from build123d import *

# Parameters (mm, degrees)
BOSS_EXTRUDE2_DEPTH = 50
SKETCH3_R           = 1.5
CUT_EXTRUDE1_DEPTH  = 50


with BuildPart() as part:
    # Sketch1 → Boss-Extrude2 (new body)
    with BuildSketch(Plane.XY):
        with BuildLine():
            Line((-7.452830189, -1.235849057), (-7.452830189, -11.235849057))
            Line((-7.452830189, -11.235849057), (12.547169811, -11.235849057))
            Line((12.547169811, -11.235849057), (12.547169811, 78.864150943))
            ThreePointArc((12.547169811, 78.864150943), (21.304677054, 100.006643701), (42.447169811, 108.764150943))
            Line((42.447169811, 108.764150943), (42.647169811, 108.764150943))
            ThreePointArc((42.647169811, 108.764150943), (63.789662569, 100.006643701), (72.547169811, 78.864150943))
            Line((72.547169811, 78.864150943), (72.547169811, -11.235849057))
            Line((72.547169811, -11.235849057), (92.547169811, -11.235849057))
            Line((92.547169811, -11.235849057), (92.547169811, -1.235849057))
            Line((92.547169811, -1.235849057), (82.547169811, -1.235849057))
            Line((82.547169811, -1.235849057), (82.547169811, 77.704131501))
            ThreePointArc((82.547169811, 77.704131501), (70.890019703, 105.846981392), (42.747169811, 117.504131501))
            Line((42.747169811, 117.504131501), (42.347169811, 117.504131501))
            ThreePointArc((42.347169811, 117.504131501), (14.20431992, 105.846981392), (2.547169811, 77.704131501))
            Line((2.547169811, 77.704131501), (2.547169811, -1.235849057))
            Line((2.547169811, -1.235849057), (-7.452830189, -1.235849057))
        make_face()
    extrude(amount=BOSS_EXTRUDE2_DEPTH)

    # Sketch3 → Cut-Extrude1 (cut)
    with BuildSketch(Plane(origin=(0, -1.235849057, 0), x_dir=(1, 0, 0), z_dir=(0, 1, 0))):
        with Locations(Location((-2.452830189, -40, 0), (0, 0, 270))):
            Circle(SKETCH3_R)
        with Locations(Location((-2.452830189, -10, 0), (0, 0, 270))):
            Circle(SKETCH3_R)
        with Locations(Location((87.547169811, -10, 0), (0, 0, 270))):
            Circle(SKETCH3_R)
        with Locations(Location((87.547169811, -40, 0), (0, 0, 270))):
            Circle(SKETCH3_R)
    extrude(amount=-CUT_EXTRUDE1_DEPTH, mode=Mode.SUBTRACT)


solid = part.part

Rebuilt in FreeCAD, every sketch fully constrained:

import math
import FreeCAD as App
import Part
import Sketcher

V = App.Vector
Q = App.Units.Quantity

doc = App.newDocument("Part")
body = doc.addObject("PartDesign::Body", "Body")

sketch1 = body.newObject("Sketcher::SketchObject", "Sketch")
sketch1.AttachmentSupport = (doc.getObject("XY_Plane"), [""])
sketch1.MapMode = "FlatFace"
sketch1.addGeometry([
    Part.LineSegment(V(-7.45, -1.24, 0), V(-7.45, -11.24, 0)),
    Part.LineSegment(V(-7.45, -11.24, 0), V(12.55, -11.24, 0)),
    Part.LineSegment(V(12.55, -11.24, 0), V(12.55, 78.86, 0)),
    Part.ArcOfCircle(Part.Circle(V(42.45, 78.86, 0), V(0, 0, 1), 29.9), math.radians(90), math.radians(180)),
    Part.LineSegment(V(42.45, 108.76, 0), V(42.65, 108.76, 0)),
    Part.ArcOfCircle(Part.Circle(V(42.65, 78.86, 0), V(0, 0, 1), 29.9), math.radians(0), math.radians(90)),
    Part.LineSegment(V(72.55, 78.86, 0), V(72.55, -11.24, 0)),
    Part.LineSegment(V(72.55, -11.24, 0), V(92.55, -11.24, 0)),
    Part.LineSegment(V(92.55, -11.24, 0), V(92.55, -1.24, 0)),
    Part.LineSegment(V(92.55, -1.24, 0), V(82.55, -1.24, 0)),
    Part.LineSegment(V(82.55, -1.24, 0), V(82.55, 77.7, 0)),
    Part.ArcOfCircle(Part.Circle(V(42.75, 77.7, 0), V(0, 0, 1), 39.8), math.radians(0), math.radians(90)),
    Part.LineSegment(V(42.75, 117.5, 0), V(42.35, 117.5, 0)),
    Part.ArcOfCircle(Part.Circle(V(42.35, 77.7, 0), V(0, 0, 1), 39.8), math.radians(90), math.radians(180)),
    Part.LineSegment(V(2.55, 77.7, 0), V(2.55, -1.24, 0)),
    Part.LineSegment(V(2.55, -1.24, 0), V(-7.45, -1.24, 0)),
], False)
sketch1.addConstraint([
    Sketcher.Constraint("Coincident", 0, 2, 1, 1),
    Sketcher.Constraint("Coincident", 1, 2, 2, 1),
    Sketcher.Constraint("Tangent", 2, 2, 3, 2),
    Sketcher.Constraint("Tangent", 3, 1, 4, 1),
    Sketcher.Constraint("Tangent", 4, 2, 5, 2),
    Sketcher.Constraint("Tangent", 5, 1, 6, 1),
    Sketcher.Constraint("Coincident", 6, 2, 7, 1),
    Sketcher.Constraint("Coincident", 7, 2, 8, 1),
    Sketcher.Constraint("Coincident", 8, 2, 9, 1),
    Sketcher.Constraint("Coincident", 9, 2, 10, 1),
    Sketcher.Constraint("Tangent", 10, 2, 11, 1),
    Sketcher.Constraint("Tangent", 11, 2, 12, 1),
    Sketcher.Constraint("Tangent", 12, 2, 13, 1),
    Sketcher.Constraint("Tangent", 13, 2, 14, 1),
    Sketcher.Constraint("Coincident", 14, 2, 15, 1),
    Sketcher.Constraint("Coincident", 15, 2, 0, 1),
    Sketcher.Constraint("Vertical", 0),
    Sketcher.Constraint("Horizontal", 1),
    Sketcher.Constraint("Vertical", 2),
    Sketcher.Constraint("Horizontal", 4),
    Sketcher.Constraint("Vertical", 6),
    Sketcher.Constraint("Horizontal", 7),
    Sketcher.Constraint("Vertical", 8),
    Sketcher.Constraint("Horizontal", 9),
    Sketcher.Constraint("Vertical", 10),
    Sketcher.Constraint("Horizontal", 12),
    Sketcher.Constraint("Vertical", 14),
    Sketcher.Constraint("Horizontal", 15),
    Sketcher.Constraint("Equal", 3, 5),
    Sketcher.Constraint("Equal", 11, 13),
    Sketcher.Constraint("Horizontal", 1, 2, 6, 2),
    Sketcher.Constraint("Horizontal", 9, 2, 14, 2),
    Sketcher.Constraint("Equal", 1, 7),
    Sketcher.Constraint("Equal", 9, 15),
    Sketcher.Constraint("Equal", 15, 0),
    Sketcher.Constraint("Radius", 3, Q("29.9 mm")),
    Sketcher.Constraint("Radius", 11, Q("39.8 mm")),
    Sketcher.Constraint("DistanceX", 1, 1, 1, 2, Q("20 mm")),
    Sketcher.Constraint("DistanceX", 9, 2, 9, 1, Q("10 mm")),
    Sketcher.Constraint("DistanceX", 4, 1, 4, 2, Q("0.2 mm")),
    Sketcher.Constraint("DistanceY", 2, 1, 2, 2, Q("90.1 mm")),
    Sketcher.Constraint("DistanceY", 10, 1, 10, 2, Q("78.939981 mm")),
    Sketcher.Constraint("DistanceX", -1, 1, 3, 3, Q("42.44717 mm")),
    Sketcher.Constraint("DistanceY", -1, 1, 3, 3, Q("78.864151 mm")),
])
pad1 = body.newObject("PartDesign::Pad", "Pad")
pad1.Profile = sketch1
pad1.Length = 50

sketch2 = body.newObject("Sketcher::SketchObject", "Sketch001")
sketch2.AttachmentSupport = (doc.getObject("XZ_Plane"), [""])
sketch2.MapMode = "FlatFace"
sketch2.AttachmentOffset = App.Placement(V(0, 0, 1.235849), App.Rotation())
sketch2.addGeometry([
    Part.Circle(V(-2.5, 40, 0), V(0, 0, 1), 1.5),
    Part.Circle(V(-2.5, 10, 0), V(0, 0, 1), 1.5),
    Part.Circle(V(87.5, 10, 0), V(0, 0, 1), 1.5),
    Part.Circle(V(87.5, 40, 0), V(0, 0, 1), 1.5),
], False)
sketch2.addConstraint([
    Sketcher.Constraint("Equal", 0, 1),
    Sketcher.Constraint("Equal", 1, 2),
    Sketcher.Constraint("Equal", 2, 3),
    Sketcher.Constraint("Horizontal", 1, 3, 2, 3),
    Sketcher.Constraint("Horizontal", 0, 3, 3, 3),
    Sketcher.Constraint("Vertical", 0, 3, 1, 3),
    Sketcher.Constraint("Vertical", 2, 3, 3, 3),
    Sketcher.Constraint("Diameter", 0, Q("3 mm")),
    Sketcher.Constraint("DistanceY", -1, 1, 0, 3, Q("40 mm")),
    Sketcher.Constraint("DistanceY", -1, 1, 1, 3, Q("10 mm")),
    Sketcher.Constraint("DistanceX", 1, 3, 2, 3, Q("90 mm")),
    Sketcher.Constraint("DistanceX", 0, 3, -1, 1, Q("2.45283 mm")),
])
pocket1 = body.newObject("PartDesign::Pocket", "Pocket")
pocket1.Profile = sketch2
pocket1.Length = 50
pocket1.Reversed = True

doc.recompute()
